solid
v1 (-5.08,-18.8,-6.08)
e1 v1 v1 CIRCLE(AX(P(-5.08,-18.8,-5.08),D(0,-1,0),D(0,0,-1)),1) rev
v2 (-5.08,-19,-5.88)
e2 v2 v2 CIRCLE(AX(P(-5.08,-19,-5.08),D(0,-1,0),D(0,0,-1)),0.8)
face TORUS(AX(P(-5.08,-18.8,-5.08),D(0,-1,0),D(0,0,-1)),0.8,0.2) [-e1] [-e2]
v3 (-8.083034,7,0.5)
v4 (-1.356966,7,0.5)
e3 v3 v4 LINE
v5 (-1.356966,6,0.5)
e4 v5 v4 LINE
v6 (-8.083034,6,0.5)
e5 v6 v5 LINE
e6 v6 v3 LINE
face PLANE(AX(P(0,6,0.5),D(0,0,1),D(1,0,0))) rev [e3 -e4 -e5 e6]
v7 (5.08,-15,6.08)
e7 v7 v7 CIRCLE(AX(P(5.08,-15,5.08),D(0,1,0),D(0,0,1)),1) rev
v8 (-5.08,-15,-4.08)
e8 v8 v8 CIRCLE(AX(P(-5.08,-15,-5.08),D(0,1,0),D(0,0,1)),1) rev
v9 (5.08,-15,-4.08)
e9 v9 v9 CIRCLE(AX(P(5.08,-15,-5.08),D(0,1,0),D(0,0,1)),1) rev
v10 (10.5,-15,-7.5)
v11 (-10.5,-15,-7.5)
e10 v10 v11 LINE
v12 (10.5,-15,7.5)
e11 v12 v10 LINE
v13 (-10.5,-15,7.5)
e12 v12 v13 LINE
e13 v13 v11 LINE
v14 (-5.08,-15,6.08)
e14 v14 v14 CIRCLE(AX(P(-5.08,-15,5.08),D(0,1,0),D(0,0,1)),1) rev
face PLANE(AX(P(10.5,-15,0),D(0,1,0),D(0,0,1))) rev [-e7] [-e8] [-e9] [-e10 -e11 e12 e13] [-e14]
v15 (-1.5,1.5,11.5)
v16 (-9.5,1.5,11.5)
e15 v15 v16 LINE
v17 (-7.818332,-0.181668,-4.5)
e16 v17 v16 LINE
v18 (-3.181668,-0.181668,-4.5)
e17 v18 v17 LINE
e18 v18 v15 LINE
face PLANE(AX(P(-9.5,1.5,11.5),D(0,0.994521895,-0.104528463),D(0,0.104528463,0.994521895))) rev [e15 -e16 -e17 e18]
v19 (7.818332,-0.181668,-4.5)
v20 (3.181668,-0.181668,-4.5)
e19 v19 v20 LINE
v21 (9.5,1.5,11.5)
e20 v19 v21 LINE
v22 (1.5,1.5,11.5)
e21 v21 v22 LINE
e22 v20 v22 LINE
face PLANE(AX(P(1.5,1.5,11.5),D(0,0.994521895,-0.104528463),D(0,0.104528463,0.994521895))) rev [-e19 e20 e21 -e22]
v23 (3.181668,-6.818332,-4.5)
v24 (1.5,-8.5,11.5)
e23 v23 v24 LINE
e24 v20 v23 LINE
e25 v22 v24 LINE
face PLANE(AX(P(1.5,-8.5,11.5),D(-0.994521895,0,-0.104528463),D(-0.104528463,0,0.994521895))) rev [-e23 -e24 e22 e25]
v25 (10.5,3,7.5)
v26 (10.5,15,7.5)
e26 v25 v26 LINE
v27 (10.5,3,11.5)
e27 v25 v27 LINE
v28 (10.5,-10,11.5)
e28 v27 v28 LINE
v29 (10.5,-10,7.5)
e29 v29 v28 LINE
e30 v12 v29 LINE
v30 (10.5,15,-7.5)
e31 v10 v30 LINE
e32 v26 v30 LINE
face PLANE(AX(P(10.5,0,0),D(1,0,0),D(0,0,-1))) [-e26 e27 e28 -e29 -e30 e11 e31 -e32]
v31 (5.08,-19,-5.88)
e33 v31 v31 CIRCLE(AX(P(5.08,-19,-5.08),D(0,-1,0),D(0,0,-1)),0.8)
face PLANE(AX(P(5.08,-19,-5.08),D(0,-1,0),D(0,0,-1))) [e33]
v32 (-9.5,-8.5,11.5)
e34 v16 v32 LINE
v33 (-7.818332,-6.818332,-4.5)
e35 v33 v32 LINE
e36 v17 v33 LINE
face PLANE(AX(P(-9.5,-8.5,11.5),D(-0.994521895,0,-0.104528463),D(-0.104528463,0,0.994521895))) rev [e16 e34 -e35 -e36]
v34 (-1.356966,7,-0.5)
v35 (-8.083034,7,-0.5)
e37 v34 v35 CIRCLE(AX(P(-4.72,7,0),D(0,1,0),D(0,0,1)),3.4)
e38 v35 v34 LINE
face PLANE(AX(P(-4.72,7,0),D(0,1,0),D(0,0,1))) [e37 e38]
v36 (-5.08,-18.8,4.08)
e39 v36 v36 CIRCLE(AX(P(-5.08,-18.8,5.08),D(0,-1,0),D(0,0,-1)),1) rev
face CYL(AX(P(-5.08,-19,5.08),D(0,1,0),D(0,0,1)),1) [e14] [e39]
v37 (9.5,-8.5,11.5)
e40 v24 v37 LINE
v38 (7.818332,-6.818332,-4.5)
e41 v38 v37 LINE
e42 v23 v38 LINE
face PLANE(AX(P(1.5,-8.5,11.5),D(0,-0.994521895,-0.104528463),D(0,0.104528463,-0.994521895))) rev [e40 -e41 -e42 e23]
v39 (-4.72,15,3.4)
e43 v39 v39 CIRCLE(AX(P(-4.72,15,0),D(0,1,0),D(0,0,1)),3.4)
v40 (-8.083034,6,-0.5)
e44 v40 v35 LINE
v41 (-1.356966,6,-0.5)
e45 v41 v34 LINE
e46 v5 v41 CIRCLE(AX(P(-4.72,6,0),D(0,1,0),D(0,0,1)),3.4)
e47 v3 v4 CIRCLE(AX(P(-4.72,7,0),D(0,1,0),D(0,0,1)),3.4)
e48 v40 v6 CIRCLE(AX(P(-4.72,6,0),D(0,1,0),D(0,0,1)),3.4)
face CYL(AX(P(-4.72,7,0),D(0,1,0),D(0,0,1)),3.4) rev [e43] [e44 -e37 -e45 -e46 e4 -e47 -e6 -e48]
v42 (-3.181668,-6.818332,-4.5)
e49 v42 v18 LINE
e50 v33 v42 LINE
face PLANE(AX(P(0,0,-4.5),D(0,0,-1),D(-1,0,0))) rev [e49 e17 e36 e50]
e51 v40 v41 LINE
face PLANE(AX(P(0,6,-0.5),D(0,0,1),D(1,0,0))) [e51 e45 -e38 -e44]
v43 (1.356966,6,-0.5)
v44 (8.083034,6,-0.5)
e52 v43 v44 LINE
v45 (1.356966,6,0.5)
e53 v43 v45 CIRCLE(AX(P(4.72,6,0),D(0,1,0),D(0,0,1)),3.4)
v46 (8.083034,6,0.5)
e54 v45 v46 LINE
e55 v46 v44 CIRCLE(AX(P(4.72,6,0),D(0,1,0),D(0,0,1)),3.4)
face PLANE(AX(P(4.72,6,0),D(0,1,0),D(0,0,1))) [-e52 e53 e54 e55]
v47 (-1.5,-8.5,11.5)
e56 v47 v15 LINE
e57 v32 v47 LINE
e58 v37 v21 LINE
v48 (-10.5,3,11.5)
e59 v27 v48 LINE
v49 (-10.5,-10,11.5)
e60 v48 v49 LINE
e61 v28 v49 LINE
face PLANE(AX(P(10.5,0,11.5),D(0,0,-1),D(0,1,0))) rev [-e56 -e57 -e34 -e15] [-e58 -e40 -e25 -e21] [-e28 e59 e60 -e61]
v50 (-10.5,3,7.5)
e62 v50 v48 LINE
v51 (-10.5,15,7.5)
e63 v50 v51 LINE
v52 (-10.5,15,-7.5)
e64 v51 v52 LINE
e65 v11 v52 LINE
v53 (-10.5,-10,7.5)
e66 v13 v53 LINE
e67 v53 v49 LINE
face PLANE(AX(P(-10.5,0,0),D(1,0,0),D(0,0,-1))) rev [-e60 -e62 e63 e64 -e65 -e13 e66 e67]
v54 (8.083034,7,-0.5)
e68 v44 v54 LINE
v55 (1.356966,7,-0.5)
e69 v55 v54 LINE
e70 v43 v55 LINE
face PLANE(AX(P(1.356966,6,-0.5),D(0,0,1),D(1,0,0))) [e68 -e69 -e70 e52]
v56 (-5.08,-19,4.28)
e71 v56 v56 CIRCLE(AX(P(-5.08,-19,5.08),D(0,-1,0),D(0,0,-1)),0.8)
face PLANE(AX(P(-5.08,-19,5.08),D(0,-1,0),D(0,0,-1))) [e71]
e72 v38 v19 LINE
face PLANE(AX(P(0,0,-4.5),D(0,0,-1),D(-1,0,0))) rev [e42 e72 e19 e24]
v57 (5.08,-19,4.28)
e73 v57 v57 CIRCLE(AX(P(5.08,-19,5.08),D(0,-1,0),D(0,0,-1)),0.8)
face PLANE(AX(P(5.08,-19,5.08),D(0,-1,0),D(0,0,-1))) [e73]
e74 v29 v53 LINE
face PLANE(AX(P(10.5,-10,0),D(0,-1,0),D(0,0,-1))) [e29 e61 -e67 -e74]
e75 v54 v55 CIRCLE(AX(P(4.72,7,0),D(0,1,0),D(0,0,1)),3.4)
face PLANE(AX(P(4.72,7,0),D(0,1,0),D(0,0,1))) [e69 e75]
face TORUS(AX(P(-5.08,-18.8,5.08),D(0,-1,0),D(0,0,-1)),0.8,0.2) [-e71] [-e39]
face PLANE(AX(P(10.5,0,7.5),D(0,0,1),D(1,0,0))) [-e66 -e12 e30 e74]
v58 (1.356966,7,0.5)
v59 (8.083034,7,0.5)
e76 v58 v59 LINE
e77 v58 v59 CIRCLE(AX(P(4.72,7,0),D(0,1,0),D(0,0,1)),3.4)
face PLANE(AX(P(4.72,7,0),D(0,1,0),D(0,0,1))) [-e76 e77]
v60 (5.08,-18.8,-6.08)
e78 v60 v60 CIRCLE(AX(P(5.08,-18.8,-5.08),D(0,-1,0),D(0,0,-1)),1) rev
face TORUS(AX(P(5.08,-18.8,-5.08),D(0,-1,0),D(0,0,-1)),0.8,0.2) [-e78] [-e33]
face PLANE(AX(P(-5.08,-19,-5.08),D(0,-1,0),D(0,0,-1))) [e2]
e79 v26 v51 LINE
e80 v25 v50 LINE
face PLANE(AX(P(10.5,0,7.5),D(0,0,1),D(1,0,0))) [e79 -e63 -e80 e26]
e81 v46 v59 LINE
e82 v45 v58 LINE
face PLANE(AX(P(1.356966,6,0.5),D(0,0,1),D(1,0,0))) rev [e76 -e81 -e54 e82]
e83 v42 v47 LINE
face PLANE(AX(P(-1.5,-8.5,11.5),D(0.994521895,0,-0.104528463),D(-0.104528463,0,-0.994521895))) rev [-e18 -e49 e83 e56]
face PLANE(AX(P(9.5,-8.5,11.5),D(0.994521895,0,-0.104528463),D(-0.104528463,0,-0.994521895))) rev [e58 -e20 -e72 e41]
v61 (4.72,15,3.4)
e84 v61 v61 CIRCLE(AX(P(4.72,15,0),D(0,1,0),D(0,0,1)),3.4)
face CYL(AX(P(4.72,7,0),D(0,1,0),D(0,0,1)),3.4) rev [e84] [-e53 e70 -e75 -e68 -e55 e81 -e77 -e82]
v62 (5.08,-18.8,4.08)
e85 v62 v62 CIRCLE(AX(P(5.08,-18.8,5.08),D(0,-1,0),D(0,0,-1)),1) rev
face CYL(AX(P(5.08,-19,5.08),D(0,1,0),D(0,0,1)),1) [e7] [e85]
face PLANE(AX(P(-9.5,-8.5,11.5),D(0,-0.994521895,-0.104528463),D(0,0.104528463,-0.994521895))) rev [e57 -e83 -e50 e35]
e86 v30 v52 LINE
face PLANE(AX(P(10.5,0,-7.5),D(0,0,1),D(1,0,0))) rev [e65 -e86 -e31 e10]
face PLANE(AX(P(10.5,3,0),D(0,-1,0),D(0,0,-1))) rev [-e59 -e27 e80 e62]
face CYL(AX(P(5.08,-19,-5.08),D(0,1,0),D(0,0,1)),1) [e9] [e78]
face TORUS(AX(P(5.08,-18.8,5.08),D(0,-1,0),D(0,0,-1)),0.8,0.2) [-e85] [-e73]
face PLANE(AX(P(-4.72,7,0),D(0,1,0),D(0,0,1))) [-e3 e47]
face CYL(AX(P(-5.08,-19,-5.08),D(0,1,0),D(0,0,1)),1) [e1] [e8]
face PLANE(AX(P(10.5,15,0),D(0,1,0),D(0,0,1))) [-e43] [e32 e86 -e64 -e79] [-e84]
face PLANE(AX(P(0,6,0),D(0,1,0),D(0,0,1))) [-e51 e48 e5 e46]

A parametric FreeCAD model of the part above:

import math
import FreeCAD as App
import Part
import Sketcher
Q = App.Units.Quantity


def edges_at(feature, points):
    """Names of the edges that pass closest to the given points."""
    edges = feature.Shape.Edges
    near = lambda p: min(range(len(edges)), key=lambda i: edges[i].distToShape(Part.Vertex(*p))[0])
    return sorted({f"Edge{near(p) + 1}" for p in points})


def faces_at(feature, points):
    """Names of the faces that lie closest to the given points."""
    faces = feature.Shape.Faces
    near = lambda p: min(range(len(faces)), key=lambda i: faces[i].distToShape(Part.Vertex(*p))[0])
    return sorted({f"Face{near(p) + 1}" for p in points})

doc = App.newDocument("Part")
params = doc.addObject("Spreadsheet::Sheet", "Params")
for row, (alias, value) in enumerate([
    ("sketch1_width", "5 mm"),
    ("sketch1_width2", "30 mm"),
    ("sketch1_width3", "12 mm"),
    ("sketch1_height", "15 mm"),
    ("sketch1_height2", "4 mm"),
    ("pad1_length", "21 mm"),
    ("sketch2_diameter", "6.8 mm"),
    ("pocket1_length", "8 mm"),
    ("sketch3_width", "8 mm"),
    ("sketch3_height", "10 mm"),
    ("pad2_length", "16 mm"),
    ("draft_angle", "6 deg"),
    ("sketch4_width", "8 mm"),
    ("sketch4_height", "10 mm"),
    ("pad3_length", "16 mm"),
    ("draft2_angle", "6 deg"),
    ("sketch5_radius", "3.4 mm"),
    ("pocket2_length", "1 mm"),
    ("sketch6_radius", "3.4 mm"),
    ("pocket3_length", "1 mm"),
    ("sketch7_diameter", "2 mm"),
    ("pad4_length", "4 mm"),
    ("fillet_radius", "0.2 mm"),
], start=1):
    params.set(f"A{row}", alias)
    params.set(f"B{row}", "=" + value)
    params.setAlias(f"B{row}", alias)

body = doc.addObject("PartDesign::Body", "Body")

# Sketch on YZ plane
sketch1 = body.newObject("Sketcher::SketchObject", "Sketch")
sketch1.AttachmentSupport = (doc.getObject("YZ_Plane"), [""])
sketch1.MapMode = "FlatFace"
sketch1.addGeometry(Part.LineSegment(App.Vector(-10, 7.5, 0), App.Vector(-15, 7.5, 0)), False)
sketch1.addGeometry(Part.LineSegment(App.Vector(-15, 7.5, 0), App.Vector(-15, -7.5, 0)), False)
sketch1.addGeometry(Part.LineSegment(App.Vector(-15, -7.5, 0), App.Vector(15, -7.5, 0)), False)
sketch1.addGeometry(Part.LineSegment(App.Vector(15, -7.5, 0), App.Vector(15, 7.5, 0)), False)
sketch1.addGeometry(Part.LineSegment(App.Vector(15, 7.5, 0), App.Vector(3, 7.5, 0)), False)
sketch1.addGeometry(Part.LineSegment(App.Vector(3, 7.5, 0), App.Vector(3, 11.5, 0)), False)
sketch1.addGeometry(Part.LineSegment(App.Vector(3, 11.5, 0), App.Vector(-10, 11.5, 0)), False)
sketch1.addGeometry(Part.LineSegment(App.Vector(-10, 11.5, 0), App.Vector(-10, 7.5, 0)), False)
sketch1.addConstraint(Sketcher.Constraint("Coincident", 0, 2, 1, 1))
sketch1.addConstraint(Sketcher.Constraint("Coincident", 1, 2, 2, 1))
sketch1.addConstraint(Sketcher.Constraint("Coincident", 2, 2, 3, 1))
sketch1.addConstraint(Sketcher.Constraint("Coincident", 3, 2, 4, 1))
sketch1.addConstraint(Sketcher.Constraint("Coincident", 4, 2, 5, 1))
sketch1.addConstraint(Sketcher.Constraint("Coincident", 5, 2, 6, 1))
sketch1.addConstraint(Sketcher.Constraint("Coincident", 6, 2, 7, 1))
sketch1.addConstraint(Sketcher.Constraint("Coincident", 7, 2, 0, 1))
sketch1.addConstraint(Sketcher.Constraint("Horizontal", 0))
sketch1.addConstraint(Sketcher.Constraint("Vertical", 1))
sketch1.addConstraint(Sketcher.Constraint("Horizontal", 2))
sketch1.addConstraint(Sketcher.Constraint("Vertical", 3))
sketch1.addConstraint(Sketcher.Constraint("Horizontal", 4))
sketch1.addConstraint(Sketcher.Constraint("Vertical", 5))
sketch1.addConstraint(Sketcher.Constraint("Horizontal", 6))
sketch1.addConstraint(Sketcher.Constraint("Vertical", 7))
sketch1.addConstraint(Sketcher.Constraint("Symmetric", 0, 2, 2, 2, -1, 1))
sketch1.addConstraint(Sketcher.Constraint("Horizontal", 0, 2, 3, 2))
sketch1.addConstraint(Sketcher.Constraint("DistanceX", 0, 2, 0, 1, Q("5 mm")))
sketch1.addConstraint(Sketcher.Constraint("DistanceX", 2, 1, 2, 2, Q("30 mm")))
sketch1.addConstraint(Sketcher.Constraint("DistanceX", 4, 2, 4, 1, Q("12 mm")))
sketch1.addConstraint(Sketcher.Constraint("DistanceY", 1, 2, 1, 1, Q("15 mm")))
sketch1.addConstraint(Sketcher.Constraint("DistanceY", 5, 1, 5, 2, Q("4 mm")))
sketch1.setExpression("Constraints[18]", "Params.sketch1_width")
sketch1.setExpression("Constraints[19]", "Params.sketch1_width2")
sketch1.setExpression("Constraints[20]", "Params.sketch1_width3")
sketch1.setExpression("Constraints[21]", "Params.sketch1_height")
sketch1.setExpression("Constraints[22]", "Params.sketch1_height2")
pad1 = body.newObject("PartDesign::Pad", "Pad")
pad1.Profile = sketch1
pad1.setExpression("Length", "Params.pad1_length")
pad1.Midplane = True

# Sketch on XZ plane
sketch2 = body.newObject("Sketcher::SketchObject", "Sketch001")
sketch2.AttachmentSupport = (doc.getObject("XZ_Plane"), [""])
sketch2.MapMode = "FlatFace"
sketch2.AttachmentOffset = App.Placement(App.Vector(0, 0, -15), App.Rotation())
sketch2.addGeometry(Part.Circle(App.Vector(-4.7, 0, 0), App.Vector(0, 0, 1), 3.4), False)
sketch2.addGeometry(Part.Circle(App.Vector(4.7, 0, 0), App.Vector(0, 0, 1), 3.4), False)
sketch2.addConstraint(Sketcher.Constraint("Equal", 0, 1))
sketch2.addConstraint(Sketcher.Constraint("Symmetric", 0, 3, 1, 3, -1, 1))
sketch2.addConstraint(Sketcher.Constraint("PointOnObject", 0, 3, -1))
sketch2.addConstraint(Sketcher.Constraint("Diameter", 0, Q("6.8 mm")))
sketch2.addConstraint(Sketcher.Constraint("DistanceX", 0, 3, -1, 1, Q("4.72 mm")))
sketch2.setExpression("Constraints[3]", "Params.sketch2_diameter")
pocket1 = body.newObject("PartDesign::Pocket", "Pocket")
pocket1.Profile = sketch2
pocket1.setExpression("Length", "Params.pocket1_length")
pocket1.Reversed = True
body2 = doc.addObject("PartDesign::Body", "Body001")

# Sketch on XY plane
sketch3 = body2.newObject("Sketcher::SketchObject", "Sketch002")
sketch3.AttachmentSupport = (doc.getObject("XY_Plane001"), [""])
sketch3.MapMode = "FlatFace"
sketch3.AttachmentOffset = App.Placement(App.Vector(0, 0, 11.5), App.Rotation())
sketch3.addGeometry(Part.LineSegment(App.Vector(-10, 2, 0), App.Vector(-10, -8, 0)), False)
sketch3.addGeometry(Part.LineSegment(App.Vector(-10, -8, 0), App.Vector(-2, -8, 0)), False)
sketch3.addGeometry(Part.LineSegment(App.Vector(-2, -8, 0), App.Vector(-2, 2, 0)), False)
sketch3.addGeometry(Part.LineSegment(App.Vector(-2, 2, 0), App.Vector(-10, 2, 0)), False)
sketch3.addConstraint(Sketcher.Constraint("Coincident", 0, 2, 1, 1))
sketch3.addConstraint(Sketcher.Constraint("Coincident", 1, 2, 2, 1))
sketch3.addConstraint(Sketcher.Constraint("Coincident", 2, 2, 3, 1))
sketch3.addConstraint(Sketcher.Constraint("Coincident", 3, 2, 0, 1))
sketch3.addConstraint(Sketcher.Constraint("Vertical", 0))
sketch3.addConstraint(Sketcher.Constraint("Horizontal", 1))
sketch3.addConstraint(Sketcher.Constraint("Vertical", 2))
sketch3.addConstraint(Sketcher.Constraint("Horizontal", 3))
sketch3.addConstraint(Sketcher.Constraint("DistanceX", 1, 1, 1, 2, Q("8 mm")))
sketch3.addConstraint(Sketcher.Constraint("DistanceY", 0, 2, 0, 1, Q("10 mm")))
sketch3.addConstraint(Sketcher.Constraint("DistanceX", 0, 2, -1, 1, Q("9.5 mm")))
sketch3.addConstraint(Sketcher.Constraint("DistanceY", 0, 2, -1, 1, Q("8.5 mm")))
sketch3.setExpression("Constraints[8]", "Params.sketch3_width")
sketch3.setExpression("Constraints[9]", "Params.sketch3_height")
pad2 = body2.newObject("PartDesign::Pad", "Pad001")
pad2.Profile = sketch3
pad2.setExpression("Length", "Params.pad2_length")
pad2.Reversed = True
doc.recompute()

datumplane = body2.newObject("PartDesign::Plane", "DatumPlane")
datumplane.AttachmentSupport = (doc.getObject("XY_Plane001"), [""])
datumplane.MapMode = "FlatFace"
datumplane.AttachmentOffset = App.Placement(App.Vector(0, 0, 11.5), App.Rotation())
draft = body2.newObject("PartDesign::Draft", "Draft")
draft.Base = (pad2, faces_at(pad2, [
    (-5.5, -8.5, 3.5),
    (-1.5, -3.5, 3.5),
    (-5.5, 1.5, 3.5),
    (-9.5, -3.5, 3.5),
]))
draft.NeutralPlane = (datumplane, [""])
draft.setExpression("Angle", "Params.draft_angle")
draft.Reversed = True
doc.recompute()

boolean = body.newObject("PartDesign::Boolean", "Boolean")
boolean.Type = "Cut"
boolean.addObjects([body2])
body3 = doc.addObject("PartDesign::Body", "Body002")

# Sketch on XY plane
sketch4 = body3.newObject("Sketcher::SketchObject", "Sketch003")
sketch4.AttachmentSupport = (doc.getObject("XY_Plane002"), [""])
sketch4.MapMode = "FlatFace"
sketch4.AttachmentOffset = App.Placement(App.Vector(0, 0, 11.5), App.Rotation())
sketch4.addGeometry(Part.LineSegment(App.Vector(2, 2, 0), App.Vector(2, -8, 0)), False)
sketch4.addGeometry(Part.LineSegment(App.Vector(2, -8, 0), App.Vector(10, -8, 0)), False)
sketch4.addGeometry(Part.LineSegment(App.Vector(10, -8, 0), App.Vector(10, 2, 0)), False)
sketch4.addGeometry(Part.LineSegment(App.Vector(10, 2, 0), App.Vector(2, 2, 0)), False)
sketch4.addConstraint(Sketcher.Constraint("Coincident", 0, 2, 1, 1))
sketch4.addConstraint(Sketcher.Constraint("Coincident", 1, 2, 2, 1))
sketch4.addConstraint(Sketcher.Constraint("Coincident", 2, 2, 3, 1))
sketch4.addConstraint(Sketcher.Constraint("Coincident", 3, 2, 0, 1))
sketch4.addConstraint(Sketcher.Constraint("Vertical", 0))
sketch4.addConstraint(Sketcher.Constraint("Horizontal", 1))
sketch4.addConstraint(Sketcher.Constraint("Vertical", 2))
sketch4.addConstraint(Sketcher.Constraint("Horizontal", 3))
sketch4.addConstraint(Sketcher.Constraint("DistanceX", 1, 1, 1, 2, Q("8 mm")))
sketch4.addConstraint(Sketcher.Constraint("DistanceY", 0, 2, 0, 1, Q("10 mm")))
sketch4.addConstraint(Sketcher.Constraint("DistanceX", -1, 1, 0, 2, Q("1.5 mm")))
sketch4.addConstraint(Sketcher.Constraint("DistanceY", 0, 2, -1, 1, Q("8.5 mm")))
sketch4.setExpression("Constraints[8]", "Params.sketch4_width")
sketch4.setExpression("Constraints[9]", "Params.sketch4_height")
pad3 = body3.newObject("PartDesign::Pad", "Pad002")
pad3.Profile = sketch4
pad3.setExpression("Length", "Params.pad3_length")
pad3.Reversed = True
doc.recompute()

datumplane2 = body3.newObject("PartDesign::Plane", "DatumPlane001")
datumplane2.AttachmentSupport = (doc.getObject("XY_Plane002"), [""])
datumplane2.MapMode = "FlatFace"
datumplane2.AttachmentOffset = App.Placement(App.Vector(0, 0, 11.5), App.Rotation())
draft2 = body3.newObject("PartDesign::Draft", "Draft001")
draft2.Base = (pad3, faces_at(pad3, [
    (5.5, -8.5, 3.5),
    (9.5, -3.5, 3.5),
    (5.5, 1.5, 3.5),
    (1.5, -3.5, 3.5),
]))
draft2.NeutralPlane = (datumplane2, [""])
draft2.setExpression("Angle", "Params.draft2_angle")
draft2.Reversed = True
doc.recompute()

boolean2 = body.newObject("PartDesign::Boolean", "Boolean001")
boolean2.Type = "Cut"
boolean2.addObjects([body3])

# Sketch on XZ plane
sketch5 = body.newObject("Sketcher::SketchObject", "Sketch004")
sketch5.AttachmentSupport = (doc.getObject("XZ_Plane"), [""])
sketch5.MapMode = "FlatFace"
sketch5.AttachmentOffset = App.Placement(App.Vector(0, 0, -7), App.Rotation())
sketch5.addGeometry(Part.ArcOfCircle(Part.Circle(App.Vector(-4.7, 0, 0), App.Vector(0, 0, 1), 3.4), math.radians(171.54), math.radians(180)), False)
sketch5.addGeometry(Part.LineSegment(App.Vector(-8.1, 0.5, 0), App.Vector(-1.4, 0.5, 0)), False)
sketch5.addGeometry(Part.ArcOfCircle(Part.Circle(App.Vector(-4.7, 0, 0), App.Vector(0, 0, 1), 3.4), math.radians(0), math.radians(8.46)), False)
sketch5.addGeometry(Part.ArcOfCircle(Part.Circle(App.Vector(-4.7, 0, 0), App.Vector(0, 0, 1), 3.4), math.radians(-8.46), math.radians(0)), False)
sketch5.addGeometry(Part.LineSegment(App.Vector(-1.4, -0.5, 0), App.Vector(-8.1, -0.5, 0)), False)
sketch5.addGeometry(Part.ArcOfCircle(Part.Circle(App.Vector(-4.7, 0, 0), App.Vector(0, 0, 1), 3.4), math.radians(-180), math.radians(-171.54)), False)
sketch5.addConstraint(Sketcher.Constraint("Coincident", 0, 1, 1, 1))
sketch5.addConstraint(Sketcher.Constraint("Coincident", 1, 2, 2, 2))
sketch5.addConstraint(Sketcher.Constraint("Tangent", 2, 1, 3, 2))
sketch5.addConstraint(Sketcher.Constraint("Coincident", 3, 1, 4, 1))
sketch5.addConstraint(Sketcher.Constraint("Coincident", 4, 2, 5, 2))
sketch5.addConstraint(Sketcher.Constraint("Tangent", 5, 1, 0, 2))
sketch5.addConstraint(Sketcher.Constraint("Horizontal", 1))
sketch5.addConstraint(Sketcher.Constraint("Horizontal", 4))
sketch5.addConstraint(Sketcher.Constraint("Coincident", 2, 3, 0, 3))
sketch5.addConstraint(Sketcher.Constraint("Equal", 0, 2))
sketch5.addConstraint(Sketcher.Constraint("Equal", 2, 3))
sketch5.addConstraint(Sketcher.Constraint("Equal", 3, 5))
sketch5.addConstraint(Sketcher.Constraint("Symmetric", 1, 2, 3, 1, -1))
sketch5.addConstraint(Sketcher.Constraint("PointOnObject", 2, 1, -1))
sketch5.addConstraint(Sketcher.Constraint("PointOnObject", 5, 1, -1))
sketch5.addConstraint(Sketcher.Constraint("Radius", 0, Q("3.4 mm")))
sketch5.addConstraint(Sketcher.Constraint("DistanceY", 3, 1, 1, 2, Q("1 mm")))
sketch5.addConstraint(Sketcher.Constraint("DistanceX", 0, 3, -1, 1, Q("4.72 mm")))
sketch5.setExpression("Constraints[15]", "Params.sketch5_radius")
pocket2 = body.newObject("PartDesign::Pocket", "Pocket001")
pocket2.Profile = sketch5
pocket2.setExpression("Length", "Params.pocket2_length")
pocket2.Reversed = True

# Sketch on XZ plane
sketch6 = body.newObject("Sketcher::SketchObject", "Sketch005")
sketch6.AttachmentSupport = (doc.getObject("XZ_Plane"), [""])
sketch6.MapMode = "FlatFace"
sketch6.AttachmentOffset = App.Placement(App.Vector(0, 0, -7), App.Rotation())
sketch6.addGeometry(Part.LineSegment(App.Vector(8.1, -0.5, 0), App.Vector(1.4, -0.5, 0)), False)
sketch6.addGeometry(Part.ArcOfCircle(Part.Circle(App.Vector(4.7, 0, 0), App.Vector(0, 0, 1), 3.4), math.radians(171.54), math.radians(188.46)), False)
sketch6.addGeometry(Part.LineSegment(App.Vector(1.4, 0.5, 0), App.Vector(8.1, 0.5, 0)), False)
sketch6.addGeometry(Part.ArcOfCircle(Part.Circle(App.Vector(4.7, 0, 0), App.Vector(0, 0, 1), 3.4), math.radians(-8.46), math.radians(8.46)), False)
sketch6.addConstraint(Sketcher.Constraint("Coincident", 0, 2, 1, 2))
sketch6.addConstraint(Sketcher.Constraint("Coincident", 1, 1, 2, 1))
sketch6.addConstraint(Sketcher.Constraint("Coincident", 2, 2, 3, 2))
sketch6.addConstraint(Sketcher.Constraint("Coincident", 3, 1, 0, 1))
sketch6.addConstraint(Sketcher.Constraint("Horizontal", 0))
sketch6.addConstraint(Sketcher.Constraint("Horizontal", 2))
sketch6.addConstraint(Sketcher.Constraint("Coincident", 3, 3, 1, 3))
sketch6.addConstraint(Sketcher.Constraint("Equal", 1, 3))
sketch6.addConstraint(Sketcher.Constraint("Symmetric", 0, 2, 1, 1, -1))
sketch6.addConstraint(Sketcher.Constraint("Radius", 1, Q("3.4 mm")))
sketch6.addConstraint(Sketcher.Constraint("DistanceY", 0, 2, 1, 1, Q("1 mm")))
sketch6.addConstraint(Sketcher.Constraint("DistanceX", -1, 1, 1, 3, Q("4.72 mm")))
sketch6.setExpression("Constraints[9]", "Params.sketch6_radius")
pocket3 = body.newObject("PartDesign::Pocket", "Pocket002")
pocket3.Profile = sketch6
pocket3.setExpression("Length", "Params.pocket3_length")
pocket3.Reversed = True

# Sketch on XZ plane
sketch7 = body.newObject("Sketcher::SketchObject", "Sketch006")
sketch7.AttachmentSupport = (doc.getObject("XZ_Plane"), [""])
sketch7.MapMode = "FlatFace"
sketch7.AttachmentOffset = App.Placement(App.Vector(0, 0, 15), App.Rotation())
sketch7.addGeometry(Part.Circle(App.Vector(-5.1, 5.1, 0), App.Vector(0, 0, 1), 1), False)
sketch7.addGeometry(Part.Circle(App.Vector(5.1, 5.1, 0), App.Vector(0, 0, 1), 1), False)
sketch7.addGeometry(Part.Circle(App.Vector(5.1, -5.1, 0), App.Vector(0, 0, 1), 1), False)
sketch7.addGeometry(Part.Circle(App.Vector(-5.1, -5.1, 0), App.Vector(0, 0, 1), 1), False)
sketch7.addConstraint(Sketcher.Constraint("Equal", 0, 1))
sketch7.addConstraint(Sketcher.Constraint("Equal", 1, 2))
sketch7.addConstraint(Sketcher.Constraint("Equal", 2, 3))
sketch7.addConstraint(Sketcher.Constraint("Symmetric", 0, 3, 2, 3, -1, 1))
sketch7.addConstraint(Sketcher.Constraint("Symmetric", 1, 3, 3, 3, -1, 1))
sketch7.addConstraint(Sketcher.Constraint("Symmetric", 0, 3, 1, 3, -2))
sketch7.addConstraint(Sketcher.Constraint("Diameter", 0, Q("2 mm")))
sketch7.addConstraint(Sketcher.Constraint("DistanceX", 0, 3, -1, 1, Q("5.08 mm")))
sketch7.addConstraint(Sketcher.Constraint("DistanceY", -1, 1, 0, 3, Q("5.08 mm")))
sketch7.setExpression("Constraints[6]", "Params.sketch7_diameter")
pad4 = body.newObject("PartDesign::Pad", "Pad003")
pad4.Profile = sketch7
pad4.setExpression("Length", "Params.pad4_length")
doc.recompute()

fillet = body.newObject("PartDesign::Fillet", "Fillet")
fillet.Base = (pad4, edges_at(pad4, [
    (-5.08, -19, -6.08),
    (-5.08, -19, 4.08),
    (5.08, -19, 4.08),
    (5.08, -19, -6.08),
]))
fillet.setExpression("Radius", "Params.fillet_radius")

doc.recompute()
